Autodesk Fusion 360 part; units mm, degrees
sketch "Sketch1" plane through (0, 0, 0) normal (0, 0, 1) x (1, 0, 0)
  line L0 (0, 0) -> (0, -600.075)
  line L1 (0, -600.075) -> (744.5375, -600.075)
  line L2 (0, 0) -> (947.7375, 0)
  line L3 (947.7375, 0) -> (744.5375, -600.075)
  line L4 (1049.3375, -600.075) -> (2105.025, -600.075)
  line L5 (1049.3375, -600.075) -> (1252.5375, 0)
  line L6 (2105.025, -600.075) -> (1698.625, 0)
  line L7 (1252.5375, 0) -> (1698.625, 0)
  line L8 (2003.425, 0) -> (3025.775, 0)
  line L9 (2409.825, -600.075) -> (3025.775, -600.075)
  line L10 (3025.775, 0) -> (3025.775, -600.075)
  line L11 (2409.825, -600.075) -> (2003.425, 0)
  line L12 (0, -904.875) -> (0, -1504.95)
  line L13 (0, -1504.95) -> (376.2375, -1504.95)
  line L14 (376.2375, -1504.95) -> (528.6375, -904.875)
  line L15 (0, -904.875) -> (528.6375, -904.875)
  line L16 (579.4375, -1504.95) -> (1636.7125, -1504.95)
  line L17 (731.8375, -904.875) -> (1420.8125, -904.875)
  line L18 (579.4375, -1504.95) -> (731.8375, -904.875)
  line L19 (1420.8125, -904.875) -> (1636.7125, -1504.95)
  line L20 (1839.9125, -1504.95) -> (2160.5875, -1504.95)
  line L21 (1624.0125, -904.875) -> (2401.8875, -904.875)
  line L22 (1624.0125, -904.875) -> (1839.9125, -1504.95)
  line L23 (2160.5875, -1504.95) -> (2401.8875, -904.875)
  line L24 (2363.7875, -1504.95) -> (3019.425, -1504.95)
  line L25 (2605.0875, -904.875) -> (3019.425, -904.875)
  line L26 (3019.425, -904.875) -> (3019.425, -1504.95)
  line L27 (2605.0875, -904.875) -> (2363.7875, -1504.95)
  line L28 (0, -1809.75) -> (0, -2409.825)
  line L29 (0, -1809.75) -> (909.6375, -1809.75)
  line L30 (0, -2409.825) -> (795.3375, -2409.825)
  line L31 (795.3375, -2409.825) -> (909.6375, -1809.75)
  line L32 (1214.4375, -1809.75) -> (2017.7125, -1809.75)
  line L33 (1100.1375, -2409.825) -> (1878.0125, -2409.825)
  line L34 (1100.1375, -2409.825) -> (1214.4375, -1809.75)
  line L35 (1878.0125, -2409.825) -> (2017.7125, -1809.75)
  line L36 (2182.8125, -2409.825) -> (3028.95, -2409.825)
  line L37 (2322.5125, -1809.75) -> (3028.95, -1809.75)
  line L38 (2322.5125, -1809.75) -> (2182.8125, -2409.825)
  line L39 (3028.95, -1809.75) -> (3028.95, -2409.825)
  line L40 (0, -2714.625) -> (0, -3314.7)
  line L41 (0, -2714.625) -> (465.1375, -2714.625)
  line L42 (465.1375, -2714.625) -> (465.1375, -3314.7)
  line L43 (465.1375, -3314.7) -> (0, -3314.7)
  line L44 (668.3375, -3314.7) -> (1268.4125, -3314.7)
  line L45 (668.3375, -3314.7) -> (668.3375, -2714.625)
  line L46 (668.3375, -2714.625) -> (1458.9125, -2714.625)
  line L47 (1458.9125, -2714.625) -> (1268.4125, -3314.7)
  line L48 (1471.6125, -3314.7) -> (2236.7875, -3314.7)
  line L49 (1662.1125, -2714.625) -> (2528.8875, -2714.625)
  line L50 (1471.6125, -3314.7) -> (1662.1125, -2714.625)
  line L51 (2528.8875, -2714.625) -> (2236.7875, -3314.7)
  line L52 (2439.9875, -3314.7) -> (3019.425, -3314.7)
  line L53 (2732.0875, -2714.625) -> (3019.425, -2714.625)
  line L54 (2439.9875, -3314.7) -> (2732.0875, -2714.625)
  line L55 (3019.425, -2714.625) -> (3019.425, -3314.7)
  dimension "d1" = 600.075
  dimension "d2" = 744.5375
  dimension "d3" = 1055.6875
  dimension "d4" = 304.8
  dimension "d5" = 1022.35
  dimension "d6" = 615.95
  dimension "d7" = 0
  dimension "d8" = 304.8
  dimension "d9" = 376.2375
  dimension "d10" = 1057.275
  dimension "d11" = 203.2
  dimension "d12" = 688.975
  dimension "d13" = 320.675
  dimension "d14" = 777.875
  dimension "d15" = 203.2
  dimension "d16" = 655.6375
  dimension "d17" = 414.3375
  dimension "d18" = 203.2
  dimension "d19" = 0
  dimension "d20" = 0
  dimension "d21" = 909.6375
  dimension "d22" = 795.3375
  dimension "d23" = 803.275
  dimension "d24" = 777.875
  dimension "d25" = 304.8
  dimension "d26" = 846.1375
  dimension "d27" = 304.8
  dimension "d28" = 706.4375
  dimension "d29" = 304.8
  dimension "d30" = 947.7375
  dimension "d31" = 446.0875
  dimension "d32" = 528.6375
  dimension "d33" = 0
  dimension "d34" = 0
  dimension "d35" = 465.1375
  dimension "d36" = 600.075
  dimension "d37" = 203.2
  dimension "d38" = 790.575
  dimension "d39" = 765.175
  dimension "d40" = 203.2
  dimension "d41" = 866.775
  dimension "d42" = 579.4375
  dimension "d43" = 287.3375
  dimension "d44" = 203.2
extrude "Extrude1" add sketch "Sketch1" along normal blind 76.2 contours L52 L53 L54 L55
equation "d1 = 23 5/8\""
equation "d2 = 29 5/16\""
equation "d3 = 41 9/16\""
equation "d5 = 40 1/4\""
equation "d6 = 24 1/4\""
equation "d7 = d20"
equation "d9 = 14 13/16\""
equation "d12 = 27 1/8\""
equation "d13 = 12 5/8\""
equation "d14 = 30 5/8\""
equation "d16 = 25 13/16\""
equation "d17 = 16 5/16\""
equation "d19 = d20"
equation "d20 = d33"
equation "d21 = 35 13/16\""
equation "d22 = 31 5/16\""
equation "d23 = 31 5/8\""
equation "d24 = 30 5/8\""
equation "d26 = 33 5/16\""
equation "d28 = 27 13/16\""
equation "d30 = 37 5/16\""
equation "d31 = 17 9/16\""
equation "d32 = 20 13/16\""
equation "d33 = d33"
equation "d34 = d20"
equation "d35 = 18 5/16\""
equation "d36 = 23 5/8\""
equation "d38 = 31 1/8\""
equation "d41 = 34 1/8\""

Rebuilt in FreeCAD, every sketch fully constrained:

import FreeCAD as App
import Part
import Sketcher
Q = App.Units.Quantity

doc = App.newDocument("Part")
body = doc.addObject("PartDesign::Body", "Body")

# Sketch on XY plane
sketch1 = body.newObject("Sketcher::SketchObject", "Sketch")
sketch1.AttachmentSupport = (doc.getObject("XY_Plane"), [""])
sketch1.MapMode = "FlatFace"
sketch1.addGeometry([
    Part.LineSegment(App.Vector(2732.0875, -2714.625, 0), App.Vector(2439.9875, -3314.7, 0)),
    Part.LineSegment(App.Vector(2439.9875, -3314.7, 0), App.Vector(3019.425, -3314.7, 0)),
    Part.LineSegment(App.Vector(3019.425, -3314.7, 0), App.Vector(3019.425, -2714.625, 0)),
    Part.LineSegment(App.Vector(3019.425, -2714.625, 0), App.Vector(2732.0875, -2714.625, 0)),
], False)
sketch1.addConstraint([
    Sketcher.Constraint("Coincident", 0, 2, 1, 1),
    Sketcher.Constraint("Coincident", 1, 2, 2, 1),
    Sketcher.Constraint("Coincident", 2, 2, 3, 1),
    Sketcher.Constraint("Coincident", 3, 2, 0, 1),
    Sketcher.Constraint("Horizontal", 1),
    Sketcher.Constraint("Vertical", 2),
    Sketcher.Constraint("Horizontal", 3),
    Sketcher.Constraint("DistanceX", 1, 1, 1, 2, Q("22.8125 in")),
    Sketcher.Constraint("DistanceX", 3, 2, 3, 1, Q("11.3125 in")),
    Sketcher.Constraint("DistanceY", 2, 1, 2, 2, Q("23.625 in")),
    Sketcher.Constraint("DistanceY", 0, 2, -1, 1, Q("130.5 in")),
    Sketcher.Constraint("DistanceX", -1, 1, 0, 2, Q("96.0625 in")),
])
pad1 = body.newObject("PartDesign::Pad", "Pad")
pad1.Profile = sketch1
pad1.Length = Q("3 in")

doc.recompute()
